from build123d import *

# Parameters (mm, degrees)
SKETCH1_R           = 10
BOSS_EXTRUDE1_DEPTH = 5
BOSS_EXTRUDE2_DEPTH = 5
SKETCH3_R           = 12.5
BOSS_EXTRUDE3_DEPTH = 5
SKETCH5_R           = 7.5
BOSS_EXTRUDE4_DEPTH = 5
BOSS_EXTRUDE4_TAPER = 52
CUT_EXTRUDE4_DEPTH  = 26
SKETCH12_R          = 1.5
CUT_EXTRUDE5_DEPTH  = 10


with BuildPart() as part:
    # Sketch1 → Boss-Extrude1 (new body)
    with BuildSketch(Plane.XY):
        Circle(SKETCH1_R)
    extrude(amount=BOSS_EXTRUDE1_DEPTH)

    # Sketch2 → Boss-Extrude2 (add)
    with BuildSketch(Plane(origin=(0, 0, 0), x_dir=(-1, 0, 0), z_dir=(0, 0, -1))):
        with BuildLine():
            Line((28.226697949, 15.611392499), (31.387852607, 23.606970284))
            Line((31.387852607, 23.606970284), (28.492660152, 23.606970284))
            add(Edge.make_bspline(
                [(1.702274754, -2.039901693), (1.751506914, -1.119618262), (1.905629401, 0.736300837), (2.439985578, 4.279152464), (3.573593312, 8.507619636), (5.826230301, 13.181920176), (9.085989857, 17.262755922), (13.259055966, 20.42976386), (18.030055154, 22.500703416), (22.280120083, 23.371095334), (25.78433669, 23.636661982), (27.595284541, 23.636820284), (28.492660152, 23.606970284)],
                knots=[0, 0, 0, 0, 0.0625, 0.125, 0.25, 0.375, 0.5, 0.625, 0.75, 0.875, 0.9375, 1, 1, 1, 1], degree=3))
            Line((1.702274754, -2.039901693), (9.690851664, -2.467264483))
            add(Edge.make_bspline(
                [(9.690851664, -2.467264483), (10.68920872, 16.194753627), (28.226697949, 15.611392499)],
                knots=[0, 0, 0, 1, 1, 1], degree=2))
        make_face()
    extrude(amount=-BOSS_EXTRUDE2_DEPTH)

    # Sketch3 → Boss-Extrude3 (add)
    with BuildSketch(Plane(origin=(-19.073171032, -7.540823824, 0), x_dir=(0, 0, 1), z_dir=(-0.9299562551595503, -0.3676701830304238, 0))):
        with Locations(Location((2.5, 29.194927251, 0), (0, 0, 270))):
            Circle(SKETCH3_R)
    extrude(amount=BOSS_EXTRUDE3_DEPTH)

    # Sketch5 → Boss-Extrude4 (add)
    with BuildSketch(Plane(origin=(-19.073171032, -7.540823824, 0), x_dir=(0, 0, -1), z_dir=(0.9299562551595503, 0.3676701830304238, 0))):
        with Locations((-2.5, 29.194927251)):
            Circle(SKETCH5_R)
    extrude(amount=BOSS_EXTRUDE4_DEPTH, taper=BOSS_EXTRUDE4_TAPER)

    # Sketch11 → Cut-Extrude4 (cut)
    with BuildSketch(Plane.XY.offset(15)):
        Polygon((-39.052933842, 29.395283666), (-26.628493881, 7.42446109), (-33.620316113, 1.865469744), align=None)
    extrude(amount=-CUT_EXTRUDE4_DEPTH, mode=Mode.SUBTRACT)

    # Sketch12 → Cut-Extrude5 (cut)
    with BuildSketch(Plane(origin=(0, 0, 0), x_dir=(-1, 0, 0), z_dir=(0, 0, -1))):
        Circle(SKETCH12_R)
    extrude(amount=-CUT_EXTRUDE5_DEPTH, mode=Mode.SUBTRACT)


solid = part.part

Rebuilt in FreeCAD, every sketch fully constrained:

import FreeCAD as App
import Part
import Sketcher

V = App.Vector

doc = App.newDocument("Part")
body = doc.addObject("PartDesign::Body", "Body")

sketch1 = body.newObject("Sketcher::SketchObject", "Sketch")
sketch1.AttachmentSupport = (doc.getObject("XY_Plane"), [""])
sketch1.MapMode = "FlatFace"
sketch1.addGeometry(Part.Circle(V(0, 0, 0), V(0, 0, 1), 10), False)
sketch1.addConstraint(Sketcher.Constraint("Coincident", 0, 3, -1, 1))
sketch1.addConstraint(Sketcher.Constraint("Diameter", 0, 20.0))
pad1 = body.newObject("PartDesign::Pad", "Pad")
pad1.Profile = sketch1
pad1.Length = 5

sketch2 = body.newObject("Sketcher::SketchObject", "Sketch001")
sketch2.AttachmentSupport = (doc.getObject("XY_Plane"), [""])
sketch2.MapMode = "FlatFace"
sketch2.addGeometry(Part.LineSegment(V(-28.226698, 15.611392, 0), V(-31.387853, 23.60697, 0)), False)
sketch2.addGeometry(Part.LineSegment(V(-31.387853, 23.60697, 0), V(-28.49266, 23.60697, 0)), False)
sketch2.addGeometry(Part.BSplineCurve([V(-1.702275, -2.039902, 0), V(-1.751507, -1.119618, 0), V(-1.905629, 0.736301, 0), V(-2.439986, 4.279152, 0), V(-3.573593, 8.50762, 0), V(-5.82623, 13.18192, 0), V(-9.08599, 17.262756, 0), V(-13.259056, 20.429764, 0), V(-18.030055, 22.500703, 0), V(-22.28012, 23.371095, 0), V(-25.784337, 23.636662, 0), V(-27.595285, 23.63682, 0), V(-28.49266, 23.60697, 0)], [4, 1, 1, 1, 1, 1, 1, 1, 1, 1, 4], [0, 0.0625, 0.125, 0.25, 0.375, 0.5, 0.625, 0.75, 0.875, 0.9375, 1], False, 3, [1, 1, 1, 1, 1, 1, 1, 1, 1, 1, 1, 1, 1], False), False)
sketch2.addGeometry(Part.LineSegment(V(-1.702275, -2.039902, 0), V(-9.690852, -2.467264, 0)), False)
sketch2.addGeometry(Part.BSplineCurve([V(-9.690852, -2.467264, 0), V(-10.689209, 16.194754, 0), V(-28.226698, 15.611392, 0)], [3, 3], [0, 1], False, 2, [1, 1, 1], False), False)
sketch2.addConstraint(Sketcher.Constraint("Block", 2))
sketch2.addConstraint(Sketcher.Constraint("Block", 4))
sketch2.addConstraint(Sketcher.Constraint("Coincident", 0, 2, 1, 1))
sketch2.addConstraint(Sketcher.Constraint("Coincident", 1, 2, 2, 2))
sketch2.addConstraint(Sketcher.Constraint("Coincident", 2, 1, 3, 1))
sketch2.addConstraint(Sketcher.Constraint("Coincident", 3, 2, 4, 1))
sketch2.addConstraint(Sketcher.Constraint("Coincident", 4, 2, 0, 1))
sketch2.addConstraint(Sketcher.Constraint("Horizontal", 1))
sketch2.addConstraint(Sketcher.Constraint("DistanceX", 0, 2, 3, 2, 21.697001))
pad2 = body.newObject("PartDesign::Pad", "Pad001")
pad2.Profile = sketch2
pad2.Length = 5

sketch3 = body.newObject("Sketcher::SketchObject", "Sketch002")
sketch3.Placement = App.Placement(V(-19.073171, -7.540824, 0), App.Rotation(V(0, 0, 1), V(-0.367670183, 0.929956255, 0), V(-0.929956255, -0.367670183, 0), "ZXY"))
sketch3.addGeometry(Part.Circle(V(2, 29, 0), V(0, 0, 1), 12), False)
sketch3.addConstraint(Sketcher.Constraint("Diameter", 0, 25.0))
sketch3.addConstraint(Sketcher.Constraint("DistanceX", -1, 1, 0, 3, 2.5))
sketch3.addConstraint(Sketcher.Constraint("DistanceY", -1, 1, 0, 3, 29.194927))
pad3 = body.newObject("PartDesign::Pad", "Pad002")
pad3.Profile = sketch3
pad3.Length = 5

sketch4 = body.newObject("Sketcher::SketchObject", "Sketch003")
sketch4.Placement = App.Placement(V(-19.073171, -7.540824, 0), App.Rotation(V(0, 0, -1), V(-0.367670183, 0.929956255, 0), V(0.929956255, 0.367670183, 0), "ZXY"))
sketch4.addGeometry(Part.Circle(V(-2, 29, 0), V(0, 0, 1), 8), False)
sketch4.addConstraint(Sketcher.Constraint("Diameter", 0, 15.0))
sketch4.addConstraint(Sketcher.Constraint("DistanceX", 0, 3, -1, 1, 2.5))
sketch4.addConstraint(Sketcher.Constraint("DistanceY", -1, 1, 0, 3, 29.194927))
pad4 = body.newObject("PartDesign::Pad", "Pad003")
pad4.Profile = sketch4
pad4.Length = 5
pad4.TaperAngle = -52

sketch5 = body.newObject("Sketcher::SketchObject", "Sketch004")
sketch5.AttachmentSupport = (doc.getObject("XY_Plane"), [""])
sketch5.MapMode = "FlatFace"
sketch5.AttachmentOffset = App.Placement(V(0, 0, 15), App.Rotation())
sketch5.addGeometry(Part.LineSegment(V(-27, 7, 0), V(-39, 29, 0)), False)
sketch5.addGeometry(Part.LineSegment(V(-39, 29, 0), V(-34, 2, 0)), False)
sketch5.addGeometry(Part.LineSegment(V(-34, 2, 0), V(-27, 7, 0)), False)
sketch5.addConstraint(Sketcher.Constraint("Coincident", 0, 2, 1, 1))
sketch5.addConstraint(Sketcher.Constraint("Coincident", 1, 2, 2, 1))
sketch5.addConstraint(Sketcher.Constraint("Coincident", 2, 2, 0, 1))
sketch5.addConstraint(Sketcher.Constraint("Distance", 0, 25.240518))
sketch5.addConstraint(Sketcher.Constraint("Distance", 1, 28.06072))
sketch5.addConstraint(Sketcher.Constraint("Distance", 2, 8.932411))
sketch5.addConstraint(Sketcher.Constraint("DistanceY", -1, 1, 1, 2, 1.86547))
sketch5.addConstraint(Sketcher.Constraint("DistanceY", -1, 1, 2, 2, 7.424461))
sketch5.addConstraint(Sketcher.Constraint("DistanceX", 0, 2, -1, 1, 39.052934))
pocket1 = body.newObject("PartDesign::Pocket", "Pocket")
pocket1.Profile = sketch5
pocket1.Length = 26

sketch6 = body.newObject("Sketcher::SketchObject", "Sketch005")
sketch6.AttachmentSupport = (doc.getObject("XY_Plane"), [""])
sketch6.MapMode = "FlatFace"
sketch6.addGeometry(Part.Circle(V(0, 0, 0), V(0, 0, 1), 1.5), False)
sketch6.addConstraint(Sketcher.Constraint("Coincident", 0, 3, -1, 1))
sketch6.addConstraint(Sketcher.Constraint("Diameter", 0, 3.0))
pocket2 = body.newObject("PartDesign::Pocket", "Pocket001")
pocket2.Profile = sketch6
pocket2.Length = 10
pocket2.Reversed = True

doc.recompute()
